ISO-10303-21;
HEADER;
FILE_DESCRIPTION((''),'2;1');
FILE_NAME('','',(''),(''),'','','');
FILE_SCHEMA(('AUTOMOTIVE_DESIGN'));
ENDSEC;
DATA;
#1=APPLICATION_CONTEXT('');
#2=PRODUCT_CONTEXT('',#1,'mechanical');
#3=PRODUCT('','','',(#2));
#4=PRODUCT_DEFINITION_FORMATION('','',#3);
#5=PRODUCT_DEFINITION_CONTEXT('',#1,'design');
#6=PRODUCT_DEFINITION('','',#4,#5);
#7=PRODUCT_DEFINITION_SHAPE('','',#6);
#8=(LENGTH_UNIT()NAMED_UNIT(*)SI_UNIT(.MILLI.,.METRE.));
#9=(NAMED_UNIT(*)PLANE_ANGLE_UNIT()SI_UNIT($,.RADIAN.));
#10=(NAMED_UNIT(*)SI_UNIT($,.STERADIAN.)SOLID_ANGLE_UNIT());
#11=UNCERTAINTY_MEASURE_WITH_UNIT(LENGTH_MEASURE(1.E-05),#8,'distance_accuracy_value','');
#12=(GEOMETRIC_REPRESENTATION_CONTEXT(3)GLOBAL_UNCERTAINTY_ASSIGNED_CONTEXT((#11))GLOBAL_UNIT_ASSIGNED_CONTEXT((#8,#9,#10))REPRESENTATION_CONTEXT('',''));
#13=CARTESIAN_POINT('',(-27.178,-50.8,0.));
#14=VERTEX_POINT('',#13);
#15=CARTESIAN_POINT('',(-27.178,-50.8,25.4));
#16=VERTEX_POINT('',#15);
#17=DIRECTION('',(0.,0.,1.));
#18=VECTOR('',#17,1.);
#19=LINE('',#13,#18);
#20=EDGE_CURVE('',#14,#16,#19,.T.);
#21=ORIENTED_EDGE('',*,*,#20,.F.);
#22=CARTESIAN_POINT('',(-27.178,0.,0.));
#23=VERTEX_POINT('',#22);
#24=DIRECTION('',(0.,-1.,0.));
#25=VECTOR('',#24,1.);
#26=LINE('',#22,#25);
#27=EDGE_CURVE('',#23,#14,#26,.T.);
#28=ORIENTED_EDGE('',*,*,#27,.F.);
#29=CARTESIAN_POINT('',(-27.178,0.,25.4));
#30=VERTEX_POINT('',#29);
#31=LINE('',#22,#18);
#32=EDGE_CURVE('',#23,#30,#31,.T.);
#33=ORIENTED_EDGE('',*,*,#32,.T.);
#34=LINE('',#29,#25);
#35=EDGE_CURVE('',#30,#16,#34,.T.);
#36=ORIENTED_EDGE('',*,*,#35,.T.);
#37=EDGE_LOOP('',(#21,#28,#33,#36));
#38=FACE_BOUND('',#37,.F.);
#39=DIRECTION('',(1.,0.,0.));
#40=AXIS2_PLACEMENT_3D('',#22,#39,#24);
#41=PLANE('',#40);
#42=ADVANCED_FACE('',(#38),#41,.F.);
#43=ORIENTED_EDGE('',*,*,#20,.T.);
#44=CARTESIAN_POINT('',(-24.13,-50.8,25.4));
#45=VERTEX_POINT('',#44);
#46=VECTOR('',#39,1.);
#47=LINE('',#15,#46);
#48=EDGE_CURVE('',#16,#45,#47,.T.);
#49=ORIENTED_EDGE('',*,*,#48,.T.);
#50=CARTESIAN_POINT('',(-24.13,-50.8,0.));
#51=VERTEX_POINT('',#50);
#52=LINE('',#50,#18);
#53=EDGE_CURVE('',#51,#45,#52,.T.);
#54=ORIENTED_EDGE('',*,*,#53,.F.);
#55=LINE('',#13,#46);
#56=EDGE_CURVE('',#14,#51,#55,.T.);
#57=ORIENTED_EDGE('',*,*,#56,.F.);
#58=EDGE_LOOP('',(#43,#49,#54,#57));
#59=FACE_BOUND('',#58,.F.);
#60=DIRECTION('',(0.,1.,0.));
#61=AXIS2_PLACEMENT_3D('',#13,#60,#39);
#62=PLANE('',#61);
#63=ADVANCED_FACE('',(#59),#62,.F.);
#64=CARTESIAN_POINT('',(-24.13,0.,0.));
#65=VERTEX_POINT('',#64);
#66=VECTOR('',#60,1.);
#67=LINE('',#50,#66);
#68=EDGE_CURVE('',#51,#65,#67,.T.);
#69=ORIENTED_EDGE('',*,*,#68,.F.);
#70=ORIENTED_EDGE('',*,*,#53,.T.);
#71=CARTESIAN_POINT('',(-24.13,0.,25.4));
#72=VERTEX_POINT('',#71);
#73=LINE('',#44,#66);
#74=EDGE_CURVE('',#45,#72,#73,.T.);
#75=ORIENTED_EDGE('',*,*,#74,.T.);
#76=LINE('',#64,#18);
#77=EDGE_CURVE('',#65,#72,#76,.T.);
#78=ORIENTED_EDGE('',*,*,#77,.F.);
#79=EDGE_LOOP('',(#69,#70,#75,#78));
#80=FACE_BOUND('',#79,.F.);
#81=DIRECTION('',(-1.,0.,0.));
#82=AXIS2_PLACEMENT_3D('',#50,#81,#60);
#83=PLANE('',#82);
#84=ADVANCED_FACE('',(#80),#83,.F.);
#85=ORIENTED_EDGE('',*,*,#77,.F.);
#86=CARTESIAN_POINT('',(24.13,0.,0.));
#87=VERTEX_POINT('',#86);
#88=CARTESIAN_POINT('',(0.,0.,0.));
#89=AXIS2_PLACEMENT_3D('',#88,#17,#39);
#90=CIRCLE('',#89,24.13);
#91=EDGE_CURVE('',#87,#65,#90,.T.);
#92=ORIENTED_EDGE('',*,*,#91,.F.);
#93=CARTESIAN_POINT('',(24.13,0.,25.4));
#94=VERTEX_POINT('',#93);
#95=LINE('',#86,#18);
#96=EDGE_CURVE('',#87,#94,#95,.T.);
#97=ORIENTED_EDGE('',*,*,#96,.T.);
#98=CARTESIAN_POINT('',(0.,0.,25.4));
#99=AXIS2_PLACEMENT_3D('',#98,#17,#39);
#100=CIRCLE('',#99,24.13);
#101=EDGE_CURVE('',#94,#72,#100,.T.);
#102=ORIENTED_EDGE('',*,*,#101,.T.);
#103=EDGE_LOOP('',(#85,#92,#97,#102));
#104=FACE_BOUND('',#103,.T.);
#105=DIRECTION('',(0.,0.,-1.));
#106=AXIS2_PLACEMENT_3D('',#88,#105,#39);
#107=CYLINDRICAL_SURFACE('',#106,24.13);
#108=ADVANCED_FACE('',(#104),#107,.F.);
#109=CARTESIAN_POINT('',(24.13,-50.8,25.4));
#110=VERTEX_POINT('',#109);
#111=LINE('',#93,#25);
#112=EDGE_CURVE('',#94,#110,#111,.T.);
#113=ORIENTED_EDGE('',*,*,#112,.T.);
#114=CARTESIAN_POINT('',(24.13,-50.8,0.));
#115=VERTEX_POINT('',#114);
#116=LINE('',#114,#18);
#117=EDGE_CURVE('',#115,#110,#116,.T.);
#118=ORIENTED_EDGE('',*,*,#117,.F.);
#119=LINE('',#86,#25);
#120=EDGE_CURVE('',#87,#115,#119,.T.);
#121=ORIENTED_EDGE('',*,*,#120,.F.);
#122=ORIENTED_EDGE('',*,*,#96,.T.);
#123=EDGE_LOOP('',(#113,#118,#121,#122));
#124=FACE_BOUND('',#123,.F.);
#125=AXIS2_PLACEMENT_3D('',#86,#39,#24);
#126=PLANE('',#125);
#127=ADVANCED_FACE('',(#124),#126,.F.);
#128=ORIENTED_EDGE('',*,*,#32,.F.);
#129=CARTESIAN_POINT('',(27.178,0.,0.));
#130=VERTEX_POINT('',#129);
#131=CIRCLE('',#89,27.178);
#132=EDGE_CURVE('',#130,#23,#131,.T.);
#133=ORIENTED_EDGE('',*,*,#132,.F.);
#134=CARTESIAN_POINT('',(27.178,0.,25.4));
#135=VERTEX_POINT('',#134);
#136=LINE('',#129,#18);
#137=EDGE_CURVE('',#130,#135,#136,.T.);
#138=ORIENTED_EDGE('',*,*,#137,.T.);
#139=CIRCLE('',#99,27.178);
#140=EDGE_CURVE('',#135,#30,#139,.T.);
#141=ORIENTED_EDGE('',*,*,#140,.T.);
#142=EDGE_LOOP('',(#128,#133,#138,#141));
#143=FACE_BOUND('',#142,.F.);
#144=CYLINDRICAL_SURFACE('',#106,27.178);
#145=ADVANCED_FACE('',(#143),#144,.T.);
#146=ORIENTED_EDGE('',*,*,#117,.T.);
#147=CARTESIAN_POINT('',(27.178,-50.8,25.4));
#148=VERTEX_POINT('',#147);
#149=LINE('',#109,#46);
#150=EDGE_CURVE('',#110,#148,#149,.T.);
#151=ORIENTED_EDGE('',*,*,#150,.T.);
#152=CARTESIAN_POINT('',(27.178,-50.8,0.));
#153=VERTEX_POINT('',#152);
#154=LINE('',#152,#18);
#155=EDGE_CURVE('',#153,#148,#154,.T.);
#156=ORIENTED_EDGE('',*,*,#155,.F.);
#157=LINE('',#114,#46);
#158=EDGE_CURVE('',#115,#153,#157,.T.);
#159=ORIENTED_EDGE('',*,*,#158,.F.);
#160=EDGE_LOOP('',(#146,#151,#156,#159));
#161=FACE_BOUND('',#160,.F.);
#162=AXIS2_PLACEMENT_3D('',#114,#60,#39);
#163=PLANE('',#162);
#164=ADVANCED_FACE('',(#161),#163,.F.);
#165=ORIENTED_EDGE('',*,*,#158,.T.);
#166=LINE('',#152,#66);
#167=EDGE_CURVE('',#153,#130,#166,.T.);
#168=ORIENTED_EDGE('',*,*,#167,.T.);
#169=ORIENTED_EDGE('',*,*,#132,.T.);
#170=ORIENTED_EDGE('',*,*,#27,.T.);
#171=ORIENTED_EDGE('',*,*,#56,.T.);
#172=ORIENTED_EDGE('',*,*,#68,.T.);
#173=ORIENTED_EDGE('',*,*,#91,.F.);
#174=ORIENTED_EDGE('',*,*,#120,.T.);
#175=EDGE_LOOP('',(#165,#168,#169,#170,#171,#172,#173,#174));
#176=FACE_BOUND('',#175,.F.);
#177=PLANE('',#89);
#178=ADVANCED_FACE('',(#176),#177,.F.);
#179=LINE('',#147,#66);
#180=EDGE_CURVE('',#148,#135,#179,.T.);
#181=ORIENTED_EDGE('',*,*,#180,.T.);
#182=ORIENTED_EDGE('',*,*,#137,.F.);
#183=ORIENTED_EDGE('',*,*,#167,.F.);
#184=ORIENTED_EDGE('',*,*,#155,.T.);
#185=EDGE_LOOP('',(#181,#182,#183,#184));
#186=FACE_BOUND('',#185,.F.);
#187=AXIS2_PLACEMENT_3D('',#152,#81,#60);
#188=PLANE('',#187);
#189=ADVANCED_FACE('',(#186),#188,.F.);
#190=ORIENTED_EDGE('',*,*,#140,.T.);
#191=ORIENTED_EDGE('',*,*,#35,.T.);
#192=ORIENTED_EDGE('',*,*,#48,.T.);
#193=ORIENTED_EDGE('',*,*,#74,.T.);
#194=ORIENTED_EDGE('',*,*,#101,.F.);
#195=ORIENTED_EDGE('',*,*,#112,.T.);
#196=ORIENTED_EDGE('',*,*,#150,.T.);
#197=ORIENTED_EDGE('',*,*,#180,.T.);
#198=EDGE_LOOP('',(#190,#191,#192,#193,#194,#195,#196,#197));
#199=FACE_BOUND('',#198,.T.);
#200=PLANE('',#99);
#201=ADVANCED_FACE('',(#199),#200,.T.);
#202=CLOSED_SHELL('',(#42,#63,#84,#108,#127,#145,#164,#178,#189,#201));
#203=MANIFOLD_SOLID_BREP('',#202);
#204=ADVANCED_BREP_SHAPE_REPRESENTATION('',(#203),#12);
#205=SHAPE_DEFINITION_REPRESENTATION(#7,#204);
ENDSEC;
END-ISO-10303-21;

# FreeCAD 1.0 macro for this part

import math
import FreeCAD as App
import Part
import Sketcher

V = App.Vector
Q = App.Units.Quantity

doc = App.newDocument("Part")
body = doc.addObject("PartDesign::Body", "Body")

# Sketch on XY plane
sketch1 = body.newObject("Sketcher::SketchObject", "Sketch")
sketch1.AttachmentSupport = (doc.getObject("XY_Plane"), [""])
sketch1.MapMode = "FlatFace"
sketch1.addGeometry([
    Part.ArcOfCircle(Part.Circle(V(0, 0, 0), V(0, 0, 1), 24.1), math.radians(0), math.radians(180)),  # 0
    Part.LineSegment(V(24.1, 0, 0), V(24.1, -50.8, 0)),  # 1
    Part.LineSegment(V(24.1, -50.8, 0), V(27.2, -50.8, 0)),  # 2
    Part.LineSegment(V(27.2, -50.8, 0), V(27.2, 0, 0)),  # 3
    Part.ArcOfCircle(Part.Circle(V(0, 0, 0), V(0, 0, 1), 27.2), math.radians(0), math.radians(180)),  # 4
    Part.LineSegment(V(-27.2, 0, 0), V(-27.2, -50.8, 0)),  # 5
    Part.LineSegment(V(-27.2, -50.8, 0), V(-24.1, -50.8, 0)),  # 6
    Part.LineSegment(V(-24.1, -50.8, 0), V(-24.1, 0, 0)),  # 7
], False)
sketch1.addConstraint([
    Sketcher.Constraint("Tangent", 0, 1, 1, 1),
    Sketcher.Constraint("Coincident", 1, 2, 2, 1),
    Sketcher.Constraint("Coincident", 2, 2, 3, 1),
    Sketcher.Constraint("Tangent", 3, 2, 4, 1),
    Sketcher.Constraint("Tangent", 4, 2, 5, 1),
    Sketcher.Constraint("Coincident", 5, 2, 6, 1),
    Sketcher.Constraint("Coincident", 6, 2, 7, 1),
    Sketcher.Constraint("Tangent", 7, 2, 0, 2),
    Sketcher.Constraint("Vertical", 1),
    Sketcher.Constraint("Horizontal", 2),
    Sketcher.Constraint("Vertical", 3),
    Sketcher.Constraint("Vertical", 5),
    Sketcher.Constraint("Horizontal", 6),
    Sketcher.Constraint("Vertical", 7),
    Sketcher.Constraint("Coincident", 0, 3, -1, 1),
    Sketcher.Constraint("Coincident", 4, 3, -1, 1),
    Sketcher.Constraint("Horizontal", 2, 2, 5, 2),
    Sketcher.Constraint("DistanceY", 1, 2, 1, 1, Q("2 in")),
    Sketcher.Constraint("Radius", 0, Q("0.95 in")),
    Sketcher.Constraint("DistanceX", 2, 1, 2, 2, Q("0.12 in")),
])
pad1 = body.newObject("PartDesign::Pad", "Pad")
pad1.Profile = sketch1
pad1.Length = Q("1 in")

doc.recompute()
